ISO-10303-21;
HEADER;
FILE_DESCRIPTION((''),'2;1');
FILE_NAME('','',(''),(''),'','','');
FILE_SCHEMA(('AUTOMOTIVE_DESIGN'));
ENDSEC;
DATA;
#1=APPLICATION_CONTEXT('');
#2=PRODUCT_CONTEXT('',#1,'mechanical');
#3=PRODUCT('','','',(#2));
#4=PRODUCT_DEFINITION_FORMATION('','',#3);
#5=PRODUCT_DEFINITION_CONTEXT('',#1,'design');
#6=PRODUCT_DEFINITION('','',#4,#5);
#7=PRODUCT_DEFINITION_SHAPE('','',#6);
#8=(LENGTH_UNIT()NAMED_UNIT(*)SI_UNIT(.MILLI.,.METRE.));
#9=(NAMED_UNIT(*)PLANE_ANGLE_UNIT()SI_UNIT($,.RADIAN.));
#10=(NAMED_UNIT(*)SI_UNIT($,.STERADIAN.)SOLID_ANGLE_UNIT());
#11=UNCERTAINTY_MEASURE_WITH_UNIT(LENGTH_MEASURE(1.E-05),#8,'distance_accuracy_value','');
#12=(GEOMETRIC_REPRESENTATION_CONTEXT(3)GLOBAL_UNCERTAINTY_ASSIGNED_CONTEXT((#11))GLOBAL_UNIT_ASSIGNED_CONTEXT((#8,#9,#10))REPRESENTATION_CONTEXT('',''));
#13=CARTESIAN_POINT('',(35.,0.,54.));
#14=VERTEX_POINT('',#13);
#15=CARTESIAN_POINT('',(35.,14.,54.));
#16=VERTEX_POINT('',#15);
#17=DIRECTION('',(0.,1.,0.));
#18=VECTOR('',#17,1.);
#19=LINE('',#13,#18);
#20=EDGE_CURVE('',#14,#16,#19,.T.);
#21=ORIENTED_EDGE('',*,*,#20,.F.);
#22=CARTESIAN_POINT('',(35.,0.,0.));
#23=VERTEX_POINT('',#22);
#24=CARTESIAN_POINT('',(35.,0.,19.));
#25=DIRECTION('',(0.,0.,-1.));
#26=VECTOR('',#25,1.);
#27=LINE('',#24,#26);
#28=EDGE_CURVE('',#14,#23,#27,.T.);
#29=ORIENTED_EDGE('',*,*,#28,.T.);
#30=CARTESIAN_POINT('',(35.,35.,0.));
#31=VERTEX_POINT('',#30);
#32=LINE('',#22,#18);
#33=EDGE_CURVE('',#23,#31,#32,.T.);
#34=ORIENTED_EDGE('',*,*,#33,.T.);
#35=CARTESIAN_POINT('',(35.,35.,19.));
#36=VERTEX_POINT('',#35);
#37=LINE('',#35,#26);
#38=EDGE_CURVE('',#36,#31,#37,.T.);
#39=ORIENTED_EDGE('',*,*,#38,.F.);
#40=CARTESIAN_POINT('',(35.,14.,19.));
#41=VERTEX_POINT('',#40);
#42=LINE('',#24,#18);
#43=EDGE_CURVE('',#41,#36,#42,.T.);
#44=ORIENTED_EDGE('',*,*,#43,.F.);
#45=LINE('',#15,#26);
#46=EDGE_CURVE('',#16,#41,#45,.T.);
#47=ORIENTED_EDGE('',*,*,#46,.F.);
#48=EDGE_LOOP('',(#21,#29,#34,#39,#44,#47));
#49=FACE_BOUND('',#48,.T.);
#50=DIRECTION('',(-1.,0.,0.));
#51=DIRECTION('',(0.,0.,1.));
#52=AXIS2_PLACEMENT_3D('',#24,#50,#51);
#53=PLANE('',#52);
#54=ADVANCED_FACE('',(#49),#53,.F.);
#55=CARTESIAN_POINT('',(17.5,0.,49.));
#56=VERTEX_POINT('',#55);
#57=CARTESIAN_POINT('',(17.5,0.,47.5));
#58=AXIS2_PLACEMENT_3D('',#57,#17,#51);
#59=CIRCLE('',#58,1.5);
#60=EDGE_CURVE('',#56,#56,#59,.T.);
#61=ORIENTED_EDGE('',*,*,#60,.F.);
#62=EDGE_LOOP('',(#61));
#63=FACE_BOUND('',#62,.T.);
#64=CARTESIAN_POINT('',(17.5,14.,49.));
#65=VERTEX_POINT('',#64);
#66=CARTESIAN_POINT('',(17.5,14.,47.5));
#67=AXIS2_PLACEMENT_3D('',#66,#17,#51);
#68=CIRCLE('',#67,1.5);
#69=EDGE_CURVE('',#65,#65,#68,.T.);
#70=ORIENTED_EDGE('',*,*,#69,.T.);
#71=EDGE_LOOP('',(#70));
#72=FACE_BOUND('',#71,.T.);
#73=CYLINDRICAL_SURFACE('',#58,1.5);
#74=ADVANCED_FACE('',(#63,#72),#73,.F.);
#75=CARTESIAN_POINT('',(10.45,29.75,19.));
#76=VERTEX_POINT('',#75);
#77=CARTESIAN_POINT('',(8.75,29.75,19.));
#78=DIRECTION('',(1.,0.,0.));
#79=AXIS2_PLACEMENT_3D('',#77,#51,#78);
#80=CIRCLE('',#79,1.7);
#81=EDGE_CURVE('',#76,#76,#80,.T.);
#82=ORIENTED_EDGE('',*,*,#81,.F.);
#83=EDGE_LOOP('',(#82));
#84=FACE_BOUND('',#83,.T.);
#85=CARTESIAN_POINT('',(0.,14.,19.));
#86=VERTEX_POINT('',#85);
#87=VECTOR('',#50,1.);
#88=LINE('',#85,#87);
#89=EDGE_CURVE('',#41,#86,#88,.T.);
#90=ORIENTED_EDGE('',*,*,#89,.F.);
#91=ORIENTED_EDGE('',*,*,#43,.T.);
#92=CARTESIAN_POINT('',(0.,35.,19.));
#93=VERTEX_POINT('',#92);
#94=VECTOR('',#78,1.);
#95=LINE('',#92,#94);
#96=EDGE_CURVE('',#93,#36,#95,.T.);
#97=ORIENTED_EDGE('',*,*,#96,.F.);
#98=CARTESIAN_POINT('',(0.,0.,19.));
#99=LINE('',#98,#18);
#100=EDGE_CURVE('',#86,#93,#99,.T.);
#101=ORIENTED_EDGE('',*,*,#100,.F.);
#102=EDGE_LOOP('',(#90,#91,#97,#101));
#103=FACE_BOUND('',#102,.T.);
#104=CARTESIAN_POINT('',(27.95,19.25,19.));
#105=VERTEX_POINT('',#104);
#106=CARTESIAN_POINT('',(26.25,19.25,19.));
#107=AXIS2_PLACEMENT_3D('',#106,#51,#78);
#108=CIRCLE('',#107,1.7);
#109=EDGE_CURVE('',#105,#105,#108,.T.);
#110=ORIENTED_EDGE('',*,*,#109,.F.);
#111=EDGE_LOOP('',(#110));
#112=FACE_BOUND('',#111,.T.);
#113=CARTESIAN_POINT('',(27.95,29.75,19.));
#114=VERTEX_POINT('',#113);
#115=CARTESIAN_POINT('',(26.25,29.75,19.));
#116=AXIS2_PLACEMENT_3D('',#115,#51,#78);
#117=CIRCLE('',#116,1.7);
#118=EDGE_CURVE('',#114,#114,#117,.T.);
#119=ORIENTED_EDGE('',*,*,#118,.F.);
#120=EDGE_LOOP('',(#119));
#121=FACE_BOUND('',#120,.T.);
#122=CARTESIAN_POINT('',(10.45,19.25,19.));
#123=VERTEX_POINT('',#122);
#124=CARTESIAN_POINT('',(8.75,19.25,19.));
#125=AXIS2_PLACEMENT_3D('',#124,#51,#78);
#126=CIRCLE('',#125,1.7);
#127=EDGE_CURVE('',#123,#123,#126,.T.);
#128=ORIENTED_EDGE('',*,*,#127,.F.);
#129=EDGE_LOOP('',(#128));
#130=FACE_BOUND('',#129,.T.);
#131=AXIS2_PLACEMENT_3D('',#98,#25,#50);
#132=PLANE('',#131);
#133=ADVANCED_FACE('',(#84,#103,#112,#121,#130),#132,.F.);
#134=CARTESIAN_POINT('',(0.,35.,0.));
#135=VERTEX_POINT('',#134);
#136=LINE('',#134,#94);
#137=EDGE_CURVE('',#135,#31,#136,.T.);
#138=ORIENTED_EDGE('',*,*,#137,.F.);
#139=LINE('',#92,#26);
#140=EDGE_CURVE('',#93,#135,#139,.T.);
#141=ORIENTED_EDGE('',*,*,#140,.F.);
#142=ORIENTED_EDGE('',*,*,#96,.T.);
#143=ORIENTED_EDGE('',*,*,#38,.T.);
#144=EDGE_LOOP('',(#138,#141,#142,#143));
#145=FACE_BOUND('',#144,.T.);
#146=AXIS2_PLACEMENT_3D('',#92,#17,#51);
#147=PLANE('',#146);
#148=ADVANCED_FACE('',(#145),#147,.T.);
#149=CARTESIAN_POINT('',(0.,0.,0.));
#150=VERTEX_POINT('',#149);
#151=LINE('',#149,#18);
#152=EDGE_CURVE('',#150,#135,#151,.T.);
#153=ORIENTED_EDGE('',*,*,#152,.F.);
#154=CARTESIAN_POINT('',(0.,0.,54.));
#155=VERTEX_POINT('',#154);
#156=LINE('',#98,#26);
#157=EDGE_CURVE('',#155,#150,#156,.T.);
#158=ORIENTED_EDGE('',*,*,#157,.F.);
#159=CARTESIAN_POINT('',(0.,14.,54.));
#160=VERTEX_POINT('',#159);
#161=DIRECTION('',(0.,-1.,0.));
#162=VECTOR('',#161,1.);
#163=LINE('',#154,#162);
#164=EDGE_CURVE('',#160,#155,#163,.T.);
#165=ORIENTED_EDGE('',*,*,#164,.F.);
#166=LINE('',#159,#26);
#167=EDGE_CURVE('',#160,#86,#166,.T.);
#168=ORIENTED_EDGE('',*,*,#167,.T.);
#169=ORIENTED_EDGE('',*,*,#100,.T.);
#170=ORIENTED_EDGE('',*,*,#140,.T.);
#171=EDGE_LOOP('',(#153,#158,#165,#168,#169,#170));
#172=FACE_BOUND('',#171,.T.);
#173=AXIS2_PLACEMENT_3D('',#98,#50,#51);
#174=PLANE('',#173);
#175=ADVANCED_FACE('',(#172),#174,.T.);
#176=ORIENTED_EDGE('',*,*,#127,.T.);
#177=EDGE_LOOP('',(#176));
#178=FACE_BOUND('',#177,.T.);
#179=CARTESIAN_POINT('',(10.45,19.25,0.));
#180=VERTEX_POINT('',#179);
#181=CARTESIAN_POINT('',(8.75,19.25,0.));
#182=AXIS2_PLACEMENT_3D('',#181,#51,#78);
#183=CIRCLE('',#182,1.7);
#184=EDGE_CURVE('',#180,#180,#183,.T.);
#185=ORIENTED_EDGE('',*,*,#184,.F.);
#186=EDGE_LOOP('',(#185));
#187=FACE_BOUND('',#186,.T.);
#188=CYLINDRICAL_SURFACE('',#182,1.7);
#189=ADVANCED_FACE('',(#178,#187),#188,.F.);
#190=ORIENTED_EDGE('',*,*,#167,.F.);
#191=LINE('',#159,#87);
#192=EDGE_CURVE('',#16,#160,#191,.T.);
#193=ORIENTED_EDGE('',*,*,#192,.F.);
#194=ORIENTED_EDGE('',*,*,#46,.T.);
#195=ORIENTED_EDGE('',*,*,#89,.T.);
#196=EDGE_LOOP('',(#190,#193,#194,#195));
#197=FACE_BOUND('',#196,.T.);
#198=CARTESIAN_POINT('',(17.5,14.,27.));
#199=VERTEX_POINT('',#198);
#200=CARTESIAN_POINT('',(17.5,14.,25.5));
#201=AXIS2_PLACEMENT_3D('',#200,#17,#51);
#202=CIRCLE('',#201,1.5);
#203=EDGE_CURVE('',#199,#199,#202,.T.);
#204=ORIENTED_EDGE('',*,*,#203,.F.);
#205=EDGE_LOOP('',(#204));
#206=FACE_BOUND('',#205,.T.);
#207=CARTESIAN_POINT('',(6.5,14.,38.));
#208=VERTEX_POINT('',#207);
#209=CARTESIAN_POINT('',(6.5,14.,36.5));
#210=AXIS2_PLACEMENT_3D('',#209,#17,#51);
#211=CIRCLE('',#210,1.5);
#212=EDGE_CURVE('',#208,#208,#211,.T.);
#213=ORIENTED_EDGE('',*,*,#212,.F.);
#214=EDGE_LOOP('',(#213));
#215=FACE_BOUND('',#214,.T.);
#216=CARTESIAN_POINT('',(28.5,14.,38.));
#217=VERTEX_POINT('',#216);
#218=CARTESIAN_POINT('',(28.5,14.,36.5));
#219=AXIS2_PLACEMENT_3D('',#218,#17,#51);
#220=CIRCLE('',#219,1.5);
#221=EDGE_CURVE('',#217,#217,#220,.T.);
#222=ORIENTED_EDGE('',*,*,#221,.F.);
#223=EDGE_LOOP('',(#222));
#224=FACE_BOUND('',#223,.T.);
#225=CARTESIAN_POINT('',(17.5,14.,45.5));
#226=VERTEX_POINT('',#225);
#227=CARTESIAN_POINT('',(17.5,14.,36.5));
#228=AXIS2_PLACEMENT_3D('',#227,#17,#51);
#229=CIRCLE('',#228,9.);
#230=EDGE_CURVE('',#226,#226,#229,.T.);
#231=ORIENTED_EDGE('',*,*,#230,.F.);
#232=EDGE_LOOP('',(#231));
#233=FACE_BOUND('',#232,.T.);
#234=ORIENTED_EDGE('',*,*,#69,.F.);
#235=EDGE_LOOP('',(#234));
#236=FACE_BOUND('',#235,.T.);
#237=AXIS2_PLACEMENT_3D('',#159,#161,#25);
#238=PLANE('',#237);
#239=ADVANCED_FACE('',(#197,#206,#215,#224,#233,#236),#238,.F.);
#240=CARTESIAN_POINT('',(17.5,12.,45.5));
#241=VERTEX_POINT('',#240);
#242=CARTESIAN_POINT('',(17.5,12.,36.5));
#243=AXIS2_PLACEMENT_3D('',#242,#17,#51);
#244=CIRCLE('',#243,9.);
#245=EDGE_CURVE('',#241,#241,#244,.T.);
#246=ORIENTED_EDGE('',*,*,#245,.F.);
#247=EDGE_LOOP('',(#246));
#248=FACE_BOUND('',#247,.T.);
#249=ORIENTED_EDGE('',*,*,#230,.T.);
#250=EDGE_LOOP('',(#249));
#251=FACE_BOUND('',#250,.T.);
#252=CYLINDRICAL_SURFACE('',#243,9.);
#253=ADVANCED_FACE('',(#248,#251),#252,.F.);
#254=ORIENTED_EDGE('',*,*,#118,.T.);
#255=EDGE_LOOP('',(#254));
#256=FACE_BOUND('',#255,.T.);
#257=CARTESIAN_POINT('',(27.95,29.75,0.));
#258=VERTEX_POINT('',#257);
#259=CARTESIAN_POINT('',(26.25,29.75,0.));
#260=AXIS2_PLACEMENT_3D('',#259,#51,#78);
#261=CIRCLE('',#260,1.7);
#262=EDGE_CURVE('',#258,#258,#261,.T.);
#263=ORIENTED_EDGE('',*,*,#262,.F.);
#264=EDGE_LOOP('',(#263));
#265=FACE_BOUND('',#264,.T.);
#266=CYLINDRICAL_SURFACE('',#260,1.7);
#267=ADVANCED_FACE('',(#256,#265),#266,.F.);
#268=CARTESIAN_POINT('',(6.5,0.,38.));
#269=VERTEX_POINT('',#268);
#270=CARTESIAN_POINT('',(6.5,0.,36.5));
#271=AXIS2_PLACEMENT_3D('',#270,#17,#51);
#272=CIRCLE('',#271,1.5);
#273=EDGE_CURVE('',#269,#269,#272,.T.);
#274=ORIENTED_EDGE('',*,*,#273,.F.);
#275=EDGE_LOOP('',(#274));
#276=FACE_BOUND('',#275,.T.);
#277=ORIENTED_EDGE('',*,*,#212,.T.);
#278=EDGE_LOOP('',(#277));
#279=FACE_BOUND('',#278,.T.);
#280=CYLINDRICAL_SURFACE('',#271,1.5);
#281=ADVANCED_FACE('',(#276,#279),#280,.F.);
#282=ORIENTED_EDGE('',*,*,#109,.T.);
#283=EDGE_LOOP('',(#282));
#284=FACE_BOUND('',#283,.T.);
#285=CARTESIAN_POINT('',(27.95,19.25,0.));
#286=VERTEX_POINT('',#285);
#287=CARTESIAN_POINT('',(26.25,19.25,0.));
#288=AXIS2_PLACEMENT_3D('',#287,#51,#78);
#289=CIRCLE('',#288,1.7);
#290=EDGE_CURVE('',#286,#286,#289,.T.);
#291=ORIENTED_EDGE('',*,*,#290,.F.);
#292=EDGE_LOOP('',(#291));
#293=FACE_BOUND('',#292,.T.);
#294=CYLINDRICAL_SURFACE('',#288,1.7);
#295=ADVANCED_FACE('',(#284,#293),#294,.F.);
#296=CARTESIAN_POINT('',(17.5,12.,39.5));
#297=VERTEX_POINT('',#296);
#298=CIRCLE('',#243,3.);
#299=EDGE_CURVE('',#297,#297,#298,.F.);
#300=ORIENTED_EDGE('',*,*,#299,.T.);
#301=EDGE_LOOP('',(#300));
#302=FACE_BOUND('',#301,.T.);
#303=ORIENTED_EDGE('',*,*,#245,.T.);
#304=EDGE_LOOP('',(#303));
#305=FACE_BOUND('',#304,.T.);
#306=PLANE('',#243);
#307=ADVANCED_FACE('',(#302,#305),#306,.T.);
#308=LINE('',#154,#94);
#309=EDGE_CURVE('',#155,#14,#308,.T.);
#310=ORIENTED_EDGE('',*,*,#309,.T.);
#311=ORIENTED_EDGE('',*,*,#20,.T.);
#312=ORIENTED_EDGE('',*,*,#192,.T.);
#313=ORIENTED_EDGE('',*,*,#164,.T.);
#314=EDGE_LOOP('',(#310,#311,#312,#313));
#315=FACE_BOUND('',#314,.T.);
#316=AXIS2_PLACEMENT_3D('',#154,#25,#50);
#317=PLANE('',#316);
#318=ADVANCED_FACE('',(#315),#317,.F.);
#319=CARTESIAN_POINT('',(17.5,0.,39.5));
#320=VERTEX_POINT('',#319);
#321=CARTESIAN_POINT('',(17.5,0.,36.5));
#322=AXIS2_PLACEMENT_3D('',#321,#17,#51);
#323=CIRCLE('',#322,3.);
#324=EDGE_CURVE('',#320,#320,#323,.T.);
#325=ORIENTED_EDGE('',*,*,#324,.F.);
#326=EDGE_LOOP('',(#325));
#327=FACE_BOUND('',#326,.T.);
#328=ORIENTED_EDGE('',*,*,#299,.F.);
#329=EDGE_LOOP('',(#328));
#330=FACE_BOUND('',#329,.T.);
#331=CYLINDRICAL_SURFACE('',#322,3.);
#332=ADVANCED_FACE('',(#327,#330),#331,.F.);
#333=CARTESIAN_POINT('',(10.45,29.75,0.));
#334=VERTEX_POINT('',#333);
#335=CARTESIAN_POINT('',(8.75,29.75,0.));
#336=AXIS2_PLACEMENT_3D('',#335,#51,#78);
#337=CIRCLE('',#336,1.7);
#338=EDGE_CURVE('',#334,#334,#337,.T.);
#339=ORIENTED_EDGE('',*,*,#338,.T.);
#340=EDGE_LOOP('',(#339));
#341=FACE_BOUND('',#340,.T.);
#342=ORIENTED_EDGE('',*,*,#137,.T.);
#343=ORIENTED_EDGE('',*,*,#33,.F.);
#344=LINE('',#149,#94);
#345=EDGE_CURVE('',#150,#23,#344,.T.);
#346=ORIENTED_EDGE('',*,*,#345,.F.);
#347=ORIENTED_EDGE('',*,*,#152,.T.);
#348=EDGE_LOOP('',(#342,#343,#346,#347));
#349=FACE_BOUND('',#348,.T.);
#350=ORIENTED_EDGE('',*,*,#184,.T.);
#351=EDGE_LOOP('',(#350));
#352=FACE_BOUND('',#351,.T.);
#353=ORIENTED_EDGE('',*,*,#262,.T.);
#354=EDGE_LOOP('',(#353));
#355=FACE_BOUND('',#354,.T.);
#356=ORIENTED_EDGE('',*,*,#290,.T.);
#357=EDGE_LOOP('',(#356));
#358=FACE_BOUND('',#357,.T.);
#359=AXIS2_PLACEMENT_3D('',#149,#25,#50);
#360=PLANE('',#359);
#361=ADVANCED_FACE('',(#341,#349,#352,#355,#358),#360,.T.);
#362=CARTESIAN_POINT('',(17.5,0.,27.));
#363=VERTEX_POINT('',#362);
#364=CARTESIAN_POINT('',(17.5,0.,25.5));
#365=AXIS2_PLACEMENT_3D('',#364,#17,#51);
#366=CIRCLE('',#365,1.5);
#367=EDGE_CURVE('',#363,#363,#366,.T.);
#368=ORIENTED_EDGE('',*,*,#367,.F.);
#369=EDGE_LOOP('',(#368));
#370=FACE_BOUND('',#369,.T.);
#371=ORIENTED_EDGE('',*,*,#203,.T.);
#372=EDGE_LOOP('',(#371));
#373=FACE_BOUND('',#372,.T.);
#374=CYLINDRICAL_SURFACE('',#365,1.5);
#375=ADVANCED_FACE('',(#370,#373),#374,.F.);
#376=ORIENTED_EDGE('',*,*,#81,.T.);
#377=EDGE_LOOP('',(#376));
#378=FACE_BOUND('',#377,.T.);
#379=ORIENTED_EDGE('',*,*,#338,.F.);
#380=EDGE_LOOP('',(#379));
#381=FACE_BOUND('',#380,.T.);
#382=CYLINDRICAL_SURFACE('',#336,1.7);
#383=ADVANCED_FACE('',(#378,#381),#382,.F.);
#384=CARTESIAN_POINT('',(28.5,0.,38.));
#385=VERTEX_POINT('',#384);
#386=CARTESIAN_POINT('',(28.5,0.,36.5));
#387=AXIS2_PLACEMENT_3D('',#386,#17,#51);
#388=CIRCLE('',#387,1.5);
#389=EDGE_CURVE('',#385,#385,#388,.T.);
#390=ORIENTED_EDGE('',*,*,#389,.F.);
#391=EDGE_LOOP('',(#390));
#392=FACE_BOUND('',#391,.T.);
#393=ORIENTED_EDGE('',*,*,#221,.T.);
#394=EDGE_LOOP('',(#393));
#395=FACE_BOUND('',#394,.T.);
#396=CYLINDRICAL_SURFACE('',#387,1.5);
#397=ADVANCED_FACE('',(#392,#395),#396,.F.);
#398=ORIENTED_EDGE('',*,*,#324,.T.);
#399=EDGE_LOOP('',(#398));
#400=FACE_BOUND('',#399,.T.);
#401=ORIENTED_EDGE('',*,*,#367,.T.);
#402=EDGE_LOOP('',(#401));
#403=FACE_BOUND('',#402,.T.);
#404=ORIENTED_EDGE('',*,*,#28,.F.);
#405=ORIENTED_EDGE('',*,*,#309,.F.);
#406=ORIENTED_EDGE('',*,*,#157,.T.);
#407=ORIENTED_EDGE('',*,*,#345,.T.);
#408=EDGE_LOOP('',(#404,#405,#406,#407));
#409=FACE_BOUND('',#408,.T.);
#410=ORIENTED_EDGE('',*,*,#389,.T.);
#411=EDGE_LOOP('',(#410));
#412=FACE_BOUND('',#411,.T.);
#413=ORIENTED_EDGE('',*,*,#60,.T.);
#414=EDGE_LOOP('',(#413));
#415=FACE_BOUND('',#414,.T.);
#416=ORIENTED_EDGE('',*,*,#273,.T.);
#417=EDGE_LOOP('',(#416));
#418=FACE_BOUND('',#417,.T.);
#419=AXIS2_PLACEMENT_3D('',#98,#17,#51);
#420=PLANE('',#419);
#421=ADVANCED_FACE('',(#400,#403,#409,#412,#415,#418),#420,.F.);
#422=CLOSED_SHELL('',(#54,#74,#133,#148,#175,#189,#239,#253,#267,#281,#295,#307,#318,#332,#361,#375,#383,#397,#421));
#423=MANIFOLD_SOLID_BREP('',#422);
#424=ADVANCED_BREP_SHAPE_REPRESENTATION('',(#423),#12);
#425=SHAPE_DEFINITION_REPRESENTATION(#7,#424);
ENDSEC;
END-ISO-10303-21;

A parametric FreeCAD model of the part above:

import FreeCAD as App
import Part
import Sketcher

V = App.Vector

doc = App.newDocument("Part")
params = doc.addObject("Spreadsheet::Sheet", "Params")
for row, (alias, value) in enumerate([
    ("sketch1_width", "35 mm"),
    ("pad1_length", "19 mm"),
    ("sketch2_width", "35 mm"),
    ("sketch2_height", "14 mm"),
    ("pad2_length", "35 mm"),
    ("sketch3_diameter", "6 mm"),
    ("sketch4_diameter", "18 mm"),
    ("pocket2_length", "2 mm"),
    ("sketch5_diameter", "3 mm"),
    ("sketch6_diameter", "3.4 mm"),
], start=1):
    params.set(f"A{row}", alias)
    params.set(f"B{row}", "=" + value)
    params.setAlias(f"B{row}", alias)

body = doc.addObject("PartDesign::Body", "Body")

# Sketch on XY plane
sketch1 = doc.addObject("Sketcher::SketchObject", "Sketch")
body.addObject(sketch1)
sketch1.AttachmentSupport = (doc.XY_Plane, [""])
sketch1.MapMode = "FlatFace"
sketch1.addGeometry([
    Part.LineSegment(V(0, 35, 0), V(0, 0, 0)),
    Part.LineSegment(V(0, 0, 0), V(35, 0, 0)),
    Part.LineSegment(V(35, 0, 0), V(35, 35, 0)),
    Part.LineSegment(V(35, 35, 0), V(0, 35, 0)),
], False)
sketch1.addConstraint([
    Sketcher.Constraint("Coincident", 0, 2, 1, 1),
    Sketcher.Constraint("Coincident", 1, 2, 2, 1),
    Sketcher.Constraint("Coincident", 2, 2, 3, 1),
    Sketcher.Constraint("Coincident", 3, 2, 0, 1),
    Sketcher.Constraint("Vertical", 0),
    Sketcher.Constraint("Horizontal", 1),
    Sketcher.Constraint("Vertical", 2),
    Sketcher.Constraint("Horizontal", 3),
    Sketcher.Constraint("Coincident", 0, 2, -1, 1),
    Sketcher.Constraint("Equal", 3, 0),
    Sketcher.Constraint("DistanceX", 1, 1, 1, 2, 35.0),
])
sketch1.setExpression("Constraints[10]", "Params.sketch1_width")
pad1 = doc.addObject("PartDesign::Pad", "Pad")
body.addObject(pad1)
pad1.Profile = sketch1
pad1.setExpression("Length", "Params.pad1_length")

# Sketch on XY plane
sketch2 = doc.addObject("Sketcher::SketchObject", "Sketch001")
body.addObject(sketch2)
sketch2.AttachmentSupport = (doc.XY_Plane, [""])
sketch2.MapMode = "FlatFace"
sketch2.AttachmentOffset = App.Placement(V(0, 0, 19), App.Rotation())
sketch2.addGeometry([
    Part.LineSegment(V(0, 14, 0), V(0, 0, 0)),
    Part.LineSegment(V(0, 0, 0), V(35, 0, 0)),
    Part.LineSegment(V(35, 0, 0), V(35, 14, 0)),
    Part.LineSegment(V(35, 14, 0), V(0, 14, 0)),
], False)
sketch2.addConstraint([
    Sketcher.Constraint("Coincident", 0, 2, 1, 1),
    Sketcher.Constraint("Coincident", 1, 2, 2, 1),
    Sketcher.Constraint("Coincident", 2, 2, 3, 1),
    Sketcher.Constraint("Coincident", 3, 2, 0, 1),
    Sketcher.Constraint("Vertical", 0),
    Sketcher.Constraint("Horizontal", 1),
    Sketcher.Constraint("Vertical", 2),
    Sketcher.Constraint("Horizontal", 3),
    Sketcher.Constraint("Coincident", 0, 2, -1, 1),
    Sketcher.Constraint("DistanceX", 1, 1, 1, 2, 35.0),
    Sketcher.Constraint("DistanceY", 0, 2, 0, 1, 14.0),
])
sketch2.setExpression("Constraints[9]", "Params.sketch2_width")
sketch2.setExpression("Constraints[10]", "Params.sketch2_height")
pad2 = doc.addObject("PartDesign::Pad", "Pad001")
body.addObject(pad2)
pad2.Profile = sketch2
pad2.setExpression("Length", "Params.pad2_length")

# Sketch on XZ plane
sketch3 = doc.addObject("Sketcher::SketchObject", "Sketch002")
body.addObject(sketch3)
sketch3.AttachmentSupport = (doc.XZ_Plane, [""])
sketch3.MapMode = "FlatFace"
sketch3.AttachmentOffset = App.Placement(V(0, 0, -14), App.Rotation())
sketch3.addGeometry(Part.Circle(V(17.5, 36.5, 0), V(0, 0, 1), 3), False)
sketch3.addConstraint([
    Sketcher.Constraint("Diameter", 0, 6.0),
    Sketcher.Constraint("DistanceX", -1, 1, 0, 3, 17.5),
    Sketcher.Constraint("DistanceY", -1, 1, 0, 3, 36.5),
])
sketch3.setExpression("Constraints[0]", "Params.sketch3_diameter")
pocket1 = doc.addObject("PartDesign::Pocket", "Pocket")
body.addObject(pocket1)
pocket1.Profile = sketch3
pocket1.Type = "ThroughAll"
pocket1.Reversed = True

# Sketch on XZ plane
sketch4 = doc.addObject("Sketcher::SketchObject", "Sketch003")
body.addObject(sketch4)
sketch4.AttachmentSupport = (doc.XZ_Plane, [""])
sketch4.MapMode = "FlatFace"
sketch4.AttachmentOffset = App.Placement(V(0, 0, -14), App.Rotation())
sketch4.addGeometry(Part.Circle(V(17.5, 36.5, 0), V(0, 0, 1), 9), False)
sketch4.addConstraint([
    Sketcher.Constraint("Diameter", 0, 18.0),
    Sketcher.Constraint("DistanceX", -1, 1, 0, 3, 17.5),
    Sketcher.Constraint("DistanceY", -1, 1, 0, 3, 36.5),
])
sketch4.setExpression("Constraints[0]", "Params.sketch4_diameter")
pocket2 = doc.addObject("PartDesign::Pocket", "Pocket001")
body.addObject(pocket2)
pocket2.Profile = sketch4
pocket2.setExpression("Length", "Params.pocket2_length")
pocket2.Reversed = True

# Sketch on XZ plane
sketch5 = doc.addObject("Sketcher::SketchObject", "Sketch004")
body.addObject(sketch5)
sketch5.AttachmentSupport = (doc.XZ_Plane, [""])
sketch5.MapMode = "FlatFace"
sketch5.AttachmentOffset = App.Placement(V(0, 0, -14), App.Rotation())
sketch5.addGeometry([
    Part.Circle(V(6.5, 36.5, 0), V(0, 0, 1), 1.5),
    Part.Circle(V(17.5, 25.5, 0), V(0, 0, 1), 1.5),
    Part.Circle(V(28.5, 36.5, 0), V(0, 0, 1), 1.5),
    Part.Circle(V(17.5, 47.5, 0), V(0, 0, 1), 1.5),
], False)
sketch5.addConstraint([
    Sketcher.Constraint("Equal", 0, 1),
    Sketcher.Constraint("Equal", 1, 2),
    Sketcher.Constraint("Equal", 2, 3),
    Sketcher.Constraint("Horizontal", 0, 3, 2, 3),
    Sketcher.Constraint("Vertical", 1, 3, 3, 3),
    Sketcher.Constraint("Diameter", 0, 3.0),
    Sketcher.Constraint("DistanceX", 0, 3, 1, 3, 11.0),
    Sketcher.Constraint("DistanceY", 1, 3, 0, 3, 11.0),
    Sketcher.Constraint("DistanceX", 1, 3, 2, 3, 11.0),
    Sketcher.Constraint("DistanceY", 0, 3, 3, 3, 11.0),
    Sketcher.Constraint("DistanceX", -1, 1, 0, 3, 6.5),
    Sketcher.Constraint("DistanceY", -1, 1, 0, 3, 36.5),
])
sketch5.setExpression("Constraints[5]", "Params.sketch5_diameter")
pocket3 = doc.addObject("PartDesign::Pocket", "Pocket002")
body.addObject(pocket3)
pocket3.Profile = sketch5
pocket3.Type = "ThroughAll"
pocket3.Reversed = True

# Sketch on XY plane
sketch6 = doc.addObject("Sketcher::SketchObject", "Sketch005")
body.addObject(sketch6)
sketch6.AttachmentSupport = (doc.XY_Plane, [""])
sketch6.MapMode = "FlatFace"
sketch6.AttachmentOffset = App.Placement(V(0, 0, 19), App.Rotation())
sketch6.addGeometry([
    Part.Circle(V(8.75, 29.75, 0), V(0, 0, 1), 1.7),
    Part.Circle(V(26.25, 29.75, 0), V(0, 0, 1), 1.7),
    Part.Circle(V(8.75, 19.25, 0), V(0, 0, 1), 1.7),
    Part.Circle(V(26.25, 19.25, 0), V(0, 0, 1), 1.7),
], False)
sketch6.addConstraint([
    Sketcher.Constraint("Equal", 0, 1),
    Sketcher.Constraint("Equal", 1, 2),
    Sketcher.Constraint("Equal", 2, 3),
    Sketcher.Constraint("Horizontal", 0, 3, 1, 3),
    Sketcher.Constraint("Horizontal", 2, 3, 3, 3),
    Sketcher.Constraint("Vertical", 0, 3, 2, 3),
    Sketcher.Constraint("Vertical", 1, 3, 3, 3),
    Sketcher.Constraint("Diameter", 0, 3.4),
    Sketcher.Constraint("DistanceX", 0, 3, 1, 3, 17.5),
    Sketcher.Constraint("DistanceY", 2, 3, 0, 3, 10.5),
    Sketcher.Constraint("DistanceX", -1, 1, 0, 3, 8.75),
    Sketcher.Constraint("DistanceY", -1, 1, 0, 3, 29.75),
])
sketch6.setExpression("Constraints[7]", "Params.sketch6_diameter")
pocket4 = doc.addObject("PartDesign::Pocket", "Pocket003")
body.addObject(pocket4)
pocket4.Profile = sketch6
pocket4.Type = "ThroughAll"

doc.recompute()
